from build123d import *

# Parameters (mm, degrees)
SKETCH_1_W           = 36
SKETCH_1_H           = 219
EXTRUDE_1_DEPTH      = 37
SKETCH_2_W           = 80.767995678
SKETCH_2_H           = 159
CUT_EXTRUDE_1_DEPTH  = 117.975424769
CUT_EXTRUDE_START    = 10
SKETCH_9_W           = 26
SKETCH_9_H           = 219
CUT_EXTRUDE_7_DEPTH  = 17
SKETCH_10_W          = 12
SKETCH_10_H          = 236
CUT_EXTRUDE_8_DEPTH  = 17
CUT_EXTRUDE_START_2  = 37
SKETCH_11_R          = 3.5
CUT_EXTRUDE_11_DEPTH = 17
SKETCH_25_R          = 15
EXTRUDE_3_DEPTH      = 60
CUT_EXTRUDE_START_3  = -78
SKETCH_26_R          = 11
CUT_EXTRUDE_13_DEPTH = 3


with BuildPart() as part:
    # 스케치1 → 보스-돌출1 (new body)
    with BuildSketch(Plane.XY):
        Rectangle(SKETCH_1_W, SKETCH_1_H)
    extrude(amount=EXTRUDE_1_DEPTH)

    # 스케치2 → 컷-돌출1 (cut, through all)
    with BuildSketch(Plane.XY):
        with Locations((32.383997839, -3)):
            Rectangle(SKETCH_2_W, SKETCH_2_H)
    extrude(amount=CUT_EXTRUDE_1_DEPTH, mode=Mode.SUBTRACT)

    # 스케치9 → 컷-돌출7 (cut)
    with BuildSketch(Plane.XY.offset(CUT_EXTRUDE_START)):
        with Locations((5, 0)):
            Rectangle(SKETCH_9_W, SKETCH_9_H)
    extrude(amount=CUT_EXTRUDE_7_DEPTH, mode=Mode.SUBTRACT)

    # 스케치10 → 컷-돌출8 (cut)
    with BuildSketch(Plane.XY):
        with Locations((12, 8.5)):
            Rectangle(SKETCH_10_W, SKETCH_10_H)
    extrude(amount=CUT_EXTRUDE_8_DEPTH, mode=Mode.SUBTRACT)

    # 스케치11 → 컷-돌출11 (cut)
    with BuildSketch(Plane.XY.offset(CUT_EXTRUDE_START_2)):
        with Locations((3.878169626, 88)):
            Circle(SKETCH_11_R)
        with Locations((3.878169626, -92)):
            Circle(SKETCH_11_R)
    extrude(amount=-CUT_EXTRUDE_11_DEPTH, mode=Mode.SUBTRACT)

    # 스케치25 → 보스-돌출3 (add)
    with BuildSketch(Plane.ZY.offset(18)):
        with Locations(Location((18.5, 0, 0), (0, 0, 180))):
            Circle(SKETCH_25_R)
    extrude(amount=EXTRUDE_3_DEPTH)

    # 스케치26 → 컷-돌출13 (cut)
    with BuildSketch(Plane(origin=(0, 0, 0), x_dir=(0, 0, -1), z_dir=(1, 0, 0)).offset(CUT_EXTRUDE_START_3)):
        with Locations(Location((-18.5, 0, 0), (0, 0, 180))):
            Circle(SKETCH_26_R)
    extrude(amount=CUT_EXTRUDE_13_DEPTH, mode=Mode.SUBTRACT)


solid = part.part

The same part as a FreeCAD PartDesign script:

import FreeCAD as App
import Part
import Sketcher

V = App.Vector

doc = App.newDocument("Part")
body = doc.addObject("PartDesign::Body", "Body")

sketch1 = body.newObject("Sketcher::SketchObject", "Sketch")
sketch1.AttachmentSupport = (doc.getObject("XY_Plane"), [""])
sketch1.MapMode = "FlatFace"
sketch1.addGeometry([
    Part.LineSegment(V(-18, 109.5, 0), V(-18, -109.5, 0)),
    Part.LineSegment(V(-18, -109.5, 0), V(18, -109.5, 0)),
    Part.LineSegment(V(18, -109.5, 0), V(18, 109.5, 0)),
    Part.LineSegment(V(18, 109.5, 0), V(-18, 109.5, 0)),
], False)
sketch1.addConstraint([
    Sketcher.Constraint("Coincident", 0, 2, 1, 1),
    Sketcher.Constraint("Coincident", 1, 2, 2, 1),
    Sketcher.Constraint("Coincident", 2, 2, 3, 1),
    Sketcher.Constraint("Coincident", 3, 2, 0, 1),
    Sketcher.Constraint("Vertical", 0),
    Sketcher.Constraint("Horizontal", 1),
    Sketcher.Constraint("Vertical", 2),
    Sketcher.Constraint("Horizontal", 3),
    Sketcher.Constraint("Symmetric", 0, 2, 2, 2, -1, 1),
    Sketcher.Constraint("DistanceX", 1, 1, 1, 2, 36.0),
    Sketcher.Constraint("DistanceY", 0, 2, 0, 1, 219.0),
])
pad1 = body.newObject("PartDesign::Pad", "Pad")
pad1.Profile = sketch1
pad1.Length = 37

sketch2 = body.newObject("Sketcher::SketchObject", "Sketch001")
sketch2.AttachmentSupport = (doc.getObject("XY_Plane"), [""])
sketch2.MapMode = "FlatFace"
sketch2.addGeometry([
    Part.LineSegment(V(-8, 76.5, 0), V(-8, -82.5, 0)),
    Part.LineSegment(V(-8, -82.5, 0), V(72.767996, -82.5, 0)),
    Part.LineSegment(V(72.767996, -82.5, 0), V(72.767996, 76.5, 0)),
    Part.LineSegment(V(72.767996, 76.5, 0), V(-8, 76.5, 0)),
], False)
sketch2.addConstraint([
    Sketcher.Constraint("Coincident", 0, 2, 1, 1),
    Sketcher.Constraint("Coincident", 1, 2, 2, 1),
    Sketcher.Constraint("Coincident", 2, 2, 3, 1),
    Sketcher.Constraint("Coincident", 3, 2, 0, 1),
    Sketcher.Constraint("Vertical", 0),
    Sketcher.Constraint("Horizontal", 1),
    Sketcher.Constraint("Vertical", 2),
    Sketcher.Constraint("Horizontal", 3),
    Sketcher.Constraint("DistanceY", 0, 2, 0, 1, 159.0),
    Sketcher.Constraint("DistanceX", 0, 2, -1, 1, 8.0),
    Sketcher.Constraint("DistanceY", 0, 2, -1, 1, 82.5),
    Sketcher.Constraint("DistanceX", 1, 1, 1, 2, 80.767996),
])
pocket1 = body.newObject("PartDesign::Pocket", "Pocket")
pocket1.Profile = sketch2
pocket1.Type = "ThroughAll"
pocket1.Reversed = True

sketch3 = body.newObject("Sketcher::SketchObject", "Sketch002")
sketch3.AttachmentSupport = (doc.getObject("XY_Plane"), [""])
sketch3.MapMode = "FlatFace"
sketch3.AttachmentOffset = App.Placement(V(0, 0, 10), App.Rotation())
sketch3.addGeometry([
    Part.LineSegment(V(-8, 109.5, 0), V(-8, -109.5, 0)),
    Part.LineSegment(V(-8, -109.5, 0), V(18, -109.5, 0)),
    Part.LineSegment(V(18, -109.5, 0), V(18, 109.5, 0)),
    Part.LineSegment(V(18, 109.5, 0), V(-8, 109.5, 0)),
], False)
sketch3.addConstraint([
    Sketcher.Constraint("Coincident", 0, 2, 1, 1),
    Sketcher.Constraint("Coincident", 1, 2, 2, 1),
    Sketcher.Constraint("Coincident", 2, 2, 3, 1),
    Sketcher.Constraint("Coincident", 3, 2, 0, 1),
    Sketcher.Constraint("Vertical", 0),
    Sketcher.Constraint("Horizontal", 1),
    Sketcher.Constraint("Vertical", 2),
    Sketcher.Constraint("Horizontal", 3),
    Sketcher.Constraint("DistanceX", 1, 1, 1, 2, 26.0),
    Sketcher.Constraint("DistanceY", 0, 2, 0, 1, 219.0),
    Sketcher.Constraint("DistanceX", 0, 2, -1, 1, 8.0),
    Sketcher.Constraint("DistanceY", 0, 2, -1, 1, 109.5),
])
pocket2 = body.newObject("PartDesign::Pocket", "Pocket001")
pocket2.Profile = sketch3
pocket2.Length = 17
pocket2.Reversed = True

sketch4 = body.newObject("Sketcher::SketchObject", "Sketch003")
sketch4.AttachmentSupport = (doc.getObject("XY_Plane"), [""])
sketch4.MapMode = "FlatFace"
sketch4.addGeometry([
    Part.LineSegment(V(6, 126.5, 0), V(6, -109.5, 0)),
    Part.LineSegment(V(6, -109.5, 0), V(18, -109.5, 0)),
    Part.LineSegment(V(18, -109.5, 0), V(18, 126.5, 0)),
    Part.LineSegment(V(18, 126.5, 0), V(6, 126.5, 0)),
], False)
sketch4.addConstraint([
    Sketcher.Constraint("Coincident", 0, 2, 1, 1),
    Sketcher.Constraint("Coincident", 1, 2, 2, 1),
    Sketcher.Constraint("Coincident", 2, 2, 3, 1),
    Sketcher.Constraint("Coincident", 3, 2, 0, 1),
    Sketcher.Constraint("Vertical", 0),
    Sketcher.Constraint("Horizontal", 1),
    Sketcher.Constraint("Vertical", 2),
    Sketcher.Constraint("Horizontal", 3),
    Sketcher.Constraint("DistanceX", 1, 1, 1, 2, 12.0),
    Sketcher.Constraint("DistanceY", 0, 2, 0, 1, 236.0),
    Sketcher.Constraint("DistanceX", -1, 1, 0, 2, 6.0),
    Sketcher.Constraint("DistanceY", 0, 2, -1, 1, 109.5),
])
pocket3 = body.newObject("PartDesign::Pocket", "Pocket002")
pocket3.Profile = sketch4
pocket3.Length = 17
pocket3.Reversed = True

sketch5 = body.newObject("Sketcher::SketchObject", "Sketch004")
sketch5.AttachmentSupport = (doc.getObject("XY_Plane"), [""])
sketch5.MapMode = "FlatFace"
sketch5.AttachmentOffset = App.Placement(V(0, 0, 37), App.Rotation())
sketch5.addGeometry([
    Part.Circle(V(3.87817, 88, 0), V(0, 0, 1), 3.5),
    Part.Circle(V(3.87817, -92, 0), V(0, 0, 1), 3.5),
], False)
sketch5.addConstraint([
    Sketcher.Constraint("Equal", 0, 1),
    Sketcher.Constraint("Vertical", 0, 3, 1, 3),
    Sketcher.Constraint("Diameter", 0, 7.0),
    Sketcher.Constraint("DistanceY", -1, 1, 0, 3, 88.0),
    Sketcher.Constraint("DistanceY", 1, 3, -1, 1, 92.0),
    Sketcher.Constraint("DistanceX", -1, 1, 0, 3, 3.87817),
])
pocket4 = body.newObject("PartDesign::Pocket", "Pocket003")
pocket4.Profile = sketch5
pocket4.Length = 17

sketch6 = body.newObject("Sketcher::SketchObject", "Sketch005")
sketch6.AttachmentSupport = (doc.getObject("YZ_Plane"), [""])
sketch6.MapMode = "FlatFace"
sketch6.AttachmentOffset = App.Placement(V(0, 0, -18), App.Rotation())
sketch6.addGeometry(Part.Circle(V(0, 18.5, 0), V(0, 0, 1), 15), False)
sketch6.addConstraint([
    Sketcher.Constraint("PointOnObject", 0, 3, -2),
    Sketcher.Constraint("Diameter", 0, 30.0),
    Sketcher.Constraint("DistanceY", -1, 1, 0, 3, 18.5),
])
pad2 = body.newObject("PartDesign::Pad", "Pad001")
pad2.Profile = sketch6
pad2.Length = 60
pad2.Reversed = True

sketch7 = body.newObject("Sketcher::SketchObject", "Sketch006")
sketch7.AttachmentSupport = (doc.getObject("YZ_Plane"), [""])
sketch7.MapMode = "FlatFace"
sketch7.AttachmentOffset = App.Placement(V(0, 0, -78), App.Rotation())
sketch7.addGeometry(Part.Circle(V(0, 18.5, 0), V(0, 0, 1), 11), False)
sketch7.addConstraint([
    Sketcher.Constraint("PointOnObject", 0, 3, -2),
    Sketcher.Constraint("Diameter", 0, 22.0),
    Sketcher.Constraint("DistanceY", -1, 1, 0, 3, 18.5),
])
pocket5 = body.newObject("PartDesign::Pocket", "Pocket004")
pocket5.Profile = sketch7
pocket5.Length = 3
pocket5.Reversed = True

doc.recompute()
